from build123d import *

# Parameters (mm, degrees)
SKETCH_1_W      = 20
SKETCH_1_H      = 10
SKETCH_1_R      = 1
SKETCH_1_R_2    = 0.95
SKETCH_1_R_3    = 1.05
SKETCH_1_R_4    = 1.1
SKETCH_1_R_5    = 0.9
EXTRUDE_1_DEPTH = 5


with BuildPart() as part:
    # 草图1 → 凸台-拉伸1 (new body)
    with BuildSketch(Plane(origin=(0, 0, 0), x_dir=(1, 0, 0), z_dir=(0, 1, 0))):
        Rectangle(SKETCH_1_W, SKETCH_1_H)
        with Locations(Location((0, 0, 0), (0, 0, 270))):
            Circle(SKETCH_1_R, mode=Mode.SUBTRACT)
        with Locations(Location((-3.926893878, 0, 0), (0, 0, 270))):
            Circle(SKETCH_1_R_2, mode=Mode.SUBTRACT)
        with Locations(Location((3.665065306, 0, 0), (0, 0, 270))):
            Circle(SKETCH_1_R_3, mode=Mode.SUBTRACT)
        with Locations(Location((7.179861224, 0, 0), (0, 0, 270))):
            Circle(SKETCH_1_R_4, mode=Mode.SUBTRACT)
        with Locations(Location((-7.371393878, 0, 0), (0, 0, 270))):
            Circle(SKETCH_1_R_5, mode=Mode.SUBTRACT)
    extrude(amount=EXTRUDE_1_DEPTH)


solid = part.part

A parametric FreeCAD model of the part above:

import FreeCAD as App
import Part
import Sketcher
Q = App.Units.Quantity


def add_polygon(sketch, points):
    """Adds a closed chain of lines whose ends are joined by coincident constraints."""
    first, n = sketch.GeometryCount, len(points)
    for a, b in zip(points, points[1:] + points[:1]):
        sketch.addGeometry(Part.LineSegment(App.Vector(*a, 0), App.Vector(*b, 0)), False)
    for i in range(n):
        sketch.addConstraint(Sketcher.Constraint("Coincident", first + i, 2, first + (i + 1) % n, 1))

doc = App.newDocument("Part")
body = doc.addObject("PartDesign::Body", "Body")

sketch1 = doc.addObject("Sketcher::SketchObject", "Sketch")
body.addObject(sketch1)
sketch1.AttachmentSupport = (doc.XZ_Plane, [""])
sketch1.MapMode = "FlatFace"
add_polygon(sketch1, [(-10, -5), (-10, 5), (10, 5), (10, -5)])
sketch1.addGeometry(Part.Circle(App.Vector(-7.4, 0, 0), App.Vector(0, 0, 1), 0.9), False)
sketch1.addGeometry(Part.Circle(App.Vector(-3.9, 0, 0), App.Vector(0, 0, 1), 0.9), False)
sketch1.addGeometry(Part.Circle(App.Vector(0, 0, 0), App.Vector(0, 0, 1), 1), False)
sketch1.addGeometry(Part.Circle(App.Vector(3.7, 0, 0), App.Vector(0, 0, 1), 1.1), False)
sketch1.addGeometry(Part.Circle(App.Vector(7.2, 0, 0), App.Vector(0, 0, 1), 1.1), False)
sketch1.addConstraint([
    Sketcher.Constraint("Vertical", 0),
    Sketcher.Constraint("Horizontal", 1),
    Sketcher.Constraint("Vertical", 2),
    Sketcher.Constraint("Horizontal", 3),
    Sketcher.Constraint("Coincident", 6, 3, -1, 1),
    Sketcher.Constraint("Symmetric", 0, 2, 2, 2, -1, 1),
    Sketcher.Constraint("PointOnObject", 4, 3, -1),
    Sketcher.Constraint("PointOnObject", 5, 3, -1),
    Sketcher.Constraint("PointOnObject", 7, 3, -1),
    Sketcher.Constraint("PointOnObject", 8, 3, -1),
    Sketcher.Constraint("Diameter", 6, Q("2 mm")),
    Sketcher.Constraint("Diameter", 4, Q("1.8 mm")),
    Sketcher.Constraint("Diameter", 5, Q("1.9 mm")),
    Sketcher.Constraint("Diameter", 7, Q("2.1 mm")),
    Sketcher.Constraint("Diameter", 8, Q("2.2 mm")),
    Sketcher.Constraint("DistanceX", 1, 1, 1, 2, Q("20 mm")),
    Sketcher.Constraint("DistanceY", 0, 1, 0, 2, Q("10 mm")),
    Sketcher.Constraint("DistanceX", 4, 3, 5, 3, Q("3.4445 mm")),
    Sketcher.Constraint("DistanceX", -1, 1, 8, 3, Q("7.179861 mm")),
    Sketcher.Constraint("DistanceX", 5, 3, 7, 3, Q("7.591959 mm")),
    Sketcher.Constraint("DistanceX", 4, 3, -1, 1, Q("7.371394 mm")),
])
pad1 = doc.addObject("PartDesign::Pad", "Pad")
body.addObject(pad1)
pad1.Profile = sketch1
pad1.Length = 5
pad1.Reversed = True

doc.recompute()
